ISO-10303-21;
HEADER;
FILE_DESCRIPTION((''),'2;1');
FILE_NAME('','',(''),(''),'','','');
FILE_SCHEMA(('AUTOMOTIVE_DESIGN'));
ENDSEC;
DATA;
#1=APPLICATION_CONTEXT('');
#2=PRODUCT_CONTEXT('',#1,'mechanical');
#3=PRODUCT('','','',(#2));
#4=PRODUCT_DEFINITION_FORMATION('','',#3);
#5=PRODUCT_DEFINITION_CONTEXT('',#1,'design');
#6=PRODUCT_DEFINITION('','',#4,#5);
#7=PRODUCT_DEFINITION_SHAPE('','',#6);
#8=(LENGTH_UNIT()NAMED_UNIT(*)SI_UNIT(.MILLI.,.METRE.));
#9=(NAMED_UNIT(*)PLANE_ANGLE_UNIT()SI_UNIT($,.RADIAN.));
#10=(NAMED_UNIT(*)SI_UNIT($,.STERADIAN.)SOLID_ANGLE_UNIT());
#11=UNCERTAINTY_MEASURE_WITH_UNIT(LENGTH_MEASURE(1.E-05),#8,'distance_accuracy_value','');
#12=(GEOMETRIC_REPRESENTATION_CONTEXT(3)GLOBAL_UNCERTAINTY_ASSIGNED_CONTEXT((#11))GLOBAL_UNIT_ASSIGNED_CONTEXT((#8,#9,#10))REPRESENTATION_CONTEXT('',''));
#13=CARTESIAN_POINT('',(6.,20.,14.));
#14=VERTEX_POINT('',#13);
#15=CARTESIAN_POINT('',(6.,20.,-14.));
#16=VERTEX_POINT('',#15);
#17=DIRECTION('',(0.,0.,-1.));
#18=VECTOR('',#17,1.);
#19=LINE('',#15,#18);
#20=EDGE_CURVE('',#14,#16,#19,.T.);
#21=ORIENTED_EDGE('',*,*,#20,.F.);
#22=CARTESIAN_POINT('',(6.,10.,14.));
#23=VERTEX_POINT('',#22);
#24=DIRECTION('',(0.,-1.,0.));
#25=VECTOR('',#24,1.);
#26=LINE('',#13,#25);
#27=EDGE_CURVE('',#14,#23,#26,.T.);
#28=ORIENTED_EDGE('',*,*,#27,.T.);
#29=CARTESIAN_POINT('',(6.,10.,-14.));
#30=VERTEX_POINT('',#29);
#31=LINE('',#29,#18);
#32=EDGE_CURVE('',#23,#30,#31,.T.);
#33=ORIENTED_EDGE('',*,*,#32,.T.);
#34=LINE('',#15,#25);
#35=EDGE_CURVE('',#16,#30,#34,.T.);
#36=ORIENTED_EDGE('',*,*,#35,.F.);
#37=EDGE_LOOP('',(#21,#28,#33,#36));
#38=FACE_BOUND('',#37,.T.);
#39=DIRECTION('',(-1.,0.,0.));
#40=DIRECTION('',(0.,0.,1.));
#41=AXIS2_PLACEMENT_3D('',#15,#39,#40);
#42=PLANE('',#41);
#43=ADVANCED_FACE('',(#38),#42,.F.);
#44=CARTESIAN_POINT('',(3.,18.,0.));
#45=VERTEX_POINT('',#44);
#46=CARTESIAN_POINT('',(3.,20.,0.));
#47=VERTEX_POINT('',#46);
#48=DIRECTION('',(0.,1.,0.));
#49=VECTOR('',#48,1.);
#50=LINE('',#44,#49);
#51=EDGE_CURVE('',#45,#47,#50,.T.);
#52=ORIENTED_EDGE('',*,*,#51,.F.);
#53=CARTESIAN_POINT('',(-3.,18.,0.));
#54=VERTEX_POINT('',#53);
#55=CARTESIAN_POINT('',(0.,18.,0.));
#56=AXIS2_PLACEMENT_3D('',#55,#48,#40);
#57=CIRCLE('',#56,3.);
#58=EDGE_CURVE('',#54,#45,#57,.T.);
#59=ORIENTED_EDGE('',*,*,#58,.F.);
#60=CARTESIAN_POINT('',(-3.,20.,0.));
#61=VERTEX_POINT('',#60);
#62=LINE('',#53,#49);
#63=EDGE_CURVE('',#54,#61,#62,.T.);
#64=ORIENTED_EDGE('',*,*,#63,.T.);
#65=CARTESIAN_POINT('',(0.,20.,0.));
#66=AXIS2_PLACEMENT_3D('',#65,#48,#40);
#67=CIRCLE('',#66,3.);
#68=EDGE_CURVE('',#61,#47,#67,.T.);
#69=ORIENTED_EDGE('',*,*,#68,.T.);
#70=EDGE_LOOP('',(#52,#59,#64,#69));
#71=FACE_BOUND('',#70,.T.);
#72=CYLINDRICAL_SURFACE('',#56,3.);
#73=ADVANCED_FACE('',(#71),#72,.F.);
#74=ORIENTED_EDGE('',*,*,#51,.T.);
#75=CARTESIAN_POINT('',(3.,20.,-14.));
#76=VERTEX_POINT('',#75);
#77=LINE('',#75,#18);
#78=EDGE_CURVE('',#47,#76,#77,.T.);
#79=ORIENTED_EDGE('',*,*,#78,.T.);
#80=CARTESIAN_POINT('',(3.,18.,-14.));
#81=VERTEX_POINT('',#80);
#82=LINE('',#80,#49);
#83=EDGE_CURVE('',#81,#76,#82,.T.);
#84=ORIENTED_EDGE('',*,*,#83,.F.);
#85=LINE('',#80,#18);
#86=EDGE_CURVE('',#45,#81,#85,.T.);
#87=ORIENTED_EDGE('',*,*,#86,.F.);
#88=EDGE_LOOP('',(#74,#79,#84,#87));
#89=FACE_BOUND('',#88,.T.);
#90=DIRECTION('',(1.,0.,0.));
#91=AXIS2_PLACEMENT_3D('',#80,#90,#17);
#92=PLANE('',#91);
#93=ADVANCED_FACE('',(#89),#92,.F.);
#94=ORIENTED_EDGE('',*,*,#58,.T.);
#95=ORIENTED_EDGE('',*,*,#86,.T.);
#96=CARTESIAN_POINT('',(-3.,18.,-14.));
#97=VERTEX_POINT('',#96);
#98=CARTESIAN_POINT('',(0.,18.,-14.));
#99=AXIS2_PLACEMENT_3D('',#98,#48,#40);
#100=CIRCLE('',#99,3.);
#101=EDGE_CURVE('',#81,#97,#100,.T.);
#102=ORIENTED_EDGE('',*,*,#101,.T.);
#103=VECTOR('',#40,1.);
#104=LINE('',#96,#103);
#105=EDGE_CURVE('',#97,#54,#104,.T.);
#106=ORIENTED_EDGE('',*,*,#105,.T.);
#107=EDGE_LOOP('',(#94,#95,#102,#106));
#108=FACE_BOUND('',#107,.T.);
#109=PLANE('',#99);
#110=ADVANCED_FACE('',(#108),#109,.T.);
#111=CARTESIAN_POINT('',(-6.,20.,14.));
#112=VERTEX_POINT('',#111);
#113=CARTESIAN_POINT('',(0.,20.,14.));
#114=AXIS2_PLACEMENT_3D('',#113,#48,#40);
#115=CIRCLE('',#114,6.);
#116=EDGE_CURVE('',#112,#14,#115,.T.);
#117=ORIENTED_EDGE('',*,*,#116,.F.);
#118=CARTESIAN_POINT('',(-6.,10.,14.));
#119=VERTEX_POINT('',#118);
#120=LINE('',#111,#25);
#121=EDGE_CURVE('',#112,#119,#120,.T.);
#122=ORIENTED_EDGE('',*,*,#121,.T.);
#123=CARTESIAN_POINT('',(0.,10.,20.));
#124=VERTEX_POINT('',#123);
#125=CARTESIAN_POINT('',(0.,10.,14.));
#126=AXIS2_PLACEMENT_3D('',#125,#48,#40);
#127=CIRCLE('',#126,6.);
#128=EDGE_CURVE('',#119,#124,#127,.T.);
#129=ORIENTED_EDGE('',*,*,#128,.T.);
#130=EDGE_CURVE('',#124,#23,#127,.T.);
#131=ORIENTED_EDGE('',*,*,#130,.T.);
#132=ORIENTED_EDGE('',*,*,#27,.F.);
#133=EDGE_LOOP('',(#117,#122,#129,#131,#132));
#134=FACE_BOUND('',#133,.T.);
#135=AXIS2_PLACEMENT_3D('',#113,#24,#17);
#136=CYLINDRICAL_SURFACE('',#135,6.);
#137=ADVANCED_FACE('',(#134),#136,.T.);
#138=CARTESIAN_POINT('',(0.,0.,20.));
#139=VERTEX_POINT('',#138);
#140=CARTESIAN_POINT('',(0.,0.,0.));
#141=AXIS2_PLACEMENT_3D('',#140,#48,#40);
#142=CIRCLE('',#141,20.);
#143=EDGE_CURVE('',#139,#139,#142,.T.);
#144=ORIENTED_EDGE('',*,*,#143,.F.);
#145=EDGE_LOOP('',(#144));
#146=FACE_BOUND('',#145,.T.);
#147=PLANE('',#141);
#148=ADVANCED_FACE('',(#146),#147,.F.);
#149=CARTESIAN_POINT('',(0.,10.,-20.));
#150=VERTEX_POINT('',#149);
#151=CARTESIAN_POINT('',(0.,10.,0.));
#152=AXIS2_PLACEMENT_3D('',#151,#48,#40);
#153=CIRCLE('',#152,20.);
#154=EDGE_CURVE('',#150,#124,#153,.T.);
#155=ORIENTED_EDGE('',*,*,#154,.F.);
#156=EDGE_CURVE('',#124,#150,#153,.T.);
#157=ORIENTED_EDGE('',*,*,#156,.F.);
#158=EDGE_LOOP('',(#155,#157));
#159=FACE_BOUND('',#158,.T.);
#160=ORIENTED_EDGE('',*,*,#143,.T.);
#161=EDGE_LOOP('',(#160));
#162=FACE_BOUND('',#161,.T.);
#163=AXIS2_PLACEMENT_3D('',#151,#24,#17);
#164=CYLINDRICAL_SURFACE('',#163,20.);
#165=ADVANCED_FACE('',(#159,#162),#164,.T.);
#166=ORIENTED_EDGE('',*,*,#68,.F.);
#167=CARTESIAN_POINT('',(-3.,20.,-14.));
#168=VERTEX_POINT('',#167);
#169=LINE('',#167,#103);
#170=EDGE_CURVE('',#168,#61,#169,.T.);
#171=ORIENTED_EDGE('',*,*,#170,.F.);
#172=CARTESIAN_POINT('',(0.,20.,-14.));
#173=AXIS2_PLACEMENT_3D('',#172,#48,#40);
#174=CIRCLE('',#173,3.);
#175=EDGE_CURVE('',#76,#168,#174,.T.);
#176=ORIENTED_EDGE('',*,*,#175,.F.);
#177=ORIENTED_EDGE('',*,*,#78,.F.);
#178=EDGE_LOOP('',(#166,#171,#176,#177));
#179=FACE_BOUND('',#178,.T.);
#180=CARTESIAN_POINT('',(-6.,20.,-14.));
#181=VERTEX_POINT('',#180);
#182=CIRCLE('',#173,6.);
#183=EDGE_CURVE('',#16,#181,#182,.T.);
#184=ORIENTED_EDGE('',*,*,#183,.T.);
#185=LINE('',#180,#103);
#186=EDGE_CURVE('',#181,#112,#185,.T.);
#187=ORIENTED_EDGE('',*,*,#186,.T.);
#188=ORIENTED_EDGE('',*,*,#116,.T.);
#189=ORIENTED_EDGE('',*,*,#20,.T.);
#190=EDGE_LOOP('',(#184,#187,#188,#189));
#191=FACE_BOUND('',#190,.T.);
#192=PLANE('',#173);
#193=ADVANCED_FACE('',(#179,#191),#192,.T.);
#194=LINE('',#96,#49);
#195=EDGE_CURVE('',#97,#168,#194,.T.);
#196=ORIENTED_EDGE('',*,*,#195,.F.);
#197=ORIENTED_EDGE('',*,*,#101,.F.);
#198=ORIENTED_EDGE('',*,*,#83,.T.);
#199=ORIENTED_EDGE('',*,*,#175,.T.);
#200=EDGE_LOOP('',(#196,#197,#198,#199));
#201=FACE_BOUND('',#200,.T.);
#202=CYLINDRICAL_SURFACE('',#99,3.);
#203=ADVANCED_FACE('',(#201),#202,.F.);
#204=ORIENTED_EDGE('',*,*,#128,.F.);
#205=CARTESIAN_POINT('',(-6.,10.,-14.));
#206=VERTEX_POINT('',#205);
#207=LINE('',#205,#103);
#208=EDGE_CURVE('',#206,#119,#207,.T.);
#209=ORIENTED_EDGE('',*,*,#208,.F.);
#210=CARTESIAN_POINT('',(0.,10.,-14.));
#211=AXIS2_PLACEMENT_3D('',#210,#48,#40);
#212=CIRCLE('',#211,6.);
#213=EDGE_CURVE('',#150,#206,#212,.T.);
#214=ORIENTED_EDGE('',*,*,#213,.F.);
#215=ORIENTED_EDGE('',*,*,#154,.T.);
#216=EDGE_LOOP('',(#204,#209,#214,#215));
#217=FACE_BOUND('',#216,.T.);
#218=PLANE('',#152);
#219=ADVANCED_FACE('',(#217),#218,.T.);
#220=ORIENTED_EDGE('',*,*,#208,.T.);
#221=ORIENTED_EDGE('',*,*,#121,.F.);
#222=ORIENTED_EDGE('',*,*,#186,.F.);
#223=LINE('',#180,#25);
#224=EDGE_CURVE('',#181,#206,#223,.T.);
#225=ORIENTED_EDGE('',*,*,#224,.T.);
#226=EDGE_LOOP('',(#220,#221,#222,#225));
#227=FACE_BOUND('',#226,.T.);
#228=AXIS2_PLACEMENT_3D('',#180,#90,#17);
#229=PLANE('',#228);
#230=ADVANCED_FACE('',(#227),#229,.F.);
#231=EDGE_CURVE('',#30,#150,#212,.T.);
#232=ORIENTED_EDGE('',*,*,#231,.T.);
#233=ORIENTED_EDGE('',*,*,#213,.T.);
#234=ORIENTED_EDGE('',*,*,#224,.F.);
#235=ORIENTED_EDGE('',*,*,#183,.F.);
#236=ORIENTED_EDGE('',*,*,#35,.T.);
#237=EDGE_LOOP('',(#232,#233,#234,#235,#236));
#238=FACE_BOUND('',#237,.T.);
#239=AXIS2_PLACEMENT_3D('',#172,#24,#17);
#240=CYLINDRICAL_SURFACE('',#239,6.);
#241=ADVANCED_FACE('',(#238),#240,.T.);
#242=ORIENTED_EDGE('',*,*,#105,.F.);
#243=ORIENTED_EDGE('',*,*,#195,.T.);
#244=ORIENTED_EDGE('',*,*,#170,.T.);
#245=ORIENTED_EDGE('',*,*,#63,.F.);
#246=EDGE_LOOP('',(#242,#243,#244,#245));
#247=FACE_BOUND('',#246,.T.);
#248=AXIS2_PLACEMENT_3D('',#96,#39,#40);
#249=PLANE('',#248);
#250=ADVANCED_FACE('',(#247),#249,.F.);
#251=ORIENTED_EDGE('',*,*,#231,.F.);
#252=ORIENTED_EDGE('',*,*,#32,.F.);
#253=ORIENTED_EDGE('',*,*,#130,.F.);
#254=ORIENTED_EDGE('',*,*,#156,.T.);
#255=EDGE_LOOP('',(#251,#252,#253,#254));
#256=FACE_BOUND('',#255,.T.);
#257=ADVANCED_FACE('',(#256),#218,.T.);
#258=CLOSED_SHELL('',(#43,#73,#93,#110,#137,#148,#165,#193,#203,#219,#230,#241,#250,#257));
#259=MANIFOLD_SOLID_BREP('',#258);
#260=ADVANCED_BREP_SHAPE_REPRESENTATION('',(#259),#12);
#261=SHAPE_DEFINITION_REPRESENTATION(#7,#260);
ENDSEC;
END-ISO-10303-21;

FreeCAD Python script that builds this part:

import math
import FreeCAD as App
import Part
import Sketcher
Q = App.Units.Quantity

doc = App.newDocument("Part")
body = doc.addObject("PartDesign::Body", "Body")

# Sketch on XZ plane
sketch1 = body.newObject("Sketcher::SketchObject", "Sketch")
sketch1.AttachmentSupport = (doc.getObject("XZ_Plane"), [""])
sketch1.MapMode = "FlatFace"
sketch1.addGeometry(Part.Circle(App.Vector(0, 0, 0), App.Vector(0, 0, 1), 20), False)
sketch1.addConstraint([
    Sketcher.Constraint("Coincident", 0, 3, -1, 1),
    Sketcher.Constraint("Diameter", 0, Q("40 mm")),
])
pad1 = body.newObject("PartDesign::Pad", "Pad")
pad1.Profile = sketch1
pad1.Length = 10
pad1.Reversed = True

# Sketch on XZ plane
sketch2 = body.newObject("Sketcher::SketchObject", "Sketch001")
sketch2.AttachmentSupport = (doc.getObject("XZ_Plane"), [""])
sketch2.MapMode = "FlatFace"
sketch2.AttachmentOffset = App.Placement(App.Vector(0, 0, -10), App.Rotation())
sketch2.addGeometry([
    Part.LineSegment(App.Vector(6, 14, 0), App.Vector(6, -14, 0)),
    Part.ArcOfCircle(Part.Circle(App.Vector(0, -14, 0), App.Vector(0, 0, 1), 6), math.radians(180), math.radians(360)),
    Part.LineSegment(App.Vector(-6, -14, 0), App.Vector(-6, 14, 0)),
    Part.ArcOfCircle(Part.Circle(App.Vector(0, 14, 0), App.Vector(0, 0, 1), 6), math.radians(0), math.radians(180)),
], False)
sketch2.addConstraint([
    Sketcher.Constraint("Tangent", 0, 2, 1, 2),
    Sketcher.Constraint("Tangent", 1, 1, 2, 1),
    Sketcher.Constraint("Tangent", 2, 2, 3, 2),
    Sketcher.Constraint("Tangent", 3, 1, 0, 1),
    Sketcher.Constraint("Vertical", 0),
    Sketcher.Constraint("Vertical", 2),
    Sketcher.Constraint("Symmetric", 1, 3, 3, 3, -1, 1),
    Sketcher.Constraint("Radius", 1, Q("6 mm")),
    Sketcher.Constraint("DistanceY", 0, 2, 0, 1, Q("28 mm")),
])
pad2 = body.newObject("PartDesign::Pad", "Pad001")
pad2.Profile = sketch2
pad2.Length = 10
pad2.Reversed = True

# Sketch on XZ plane
sketch3 = body.newObject("Sketcher::SketchObject", "Sketch002")
sketch3.AttachmentSupport = (doc.getObject("XZ_Plane"), [""])
sketch3.MapMode = "FlatFace"
sketch3.AttachmentOffset = App.Placement(App.Vector(0, 0, -20), App.Rotation())
sketch3.addGeometry([
    Part.LineSegment(App.Vector(3, 0, 0), App.Vector(3, -14, 0)),
    Part.ArcOfCircle(Part.Circle(App.Vector(0, -14, 0), App.Vector(0, 0, 1), 3), math.radians(180), math.radians(360)),
    Part.LineSegment(App.Vector(-3, -14, 0), App.Vector(-3, 0, 0)),
    Part.ArcOfCircle(Part.Circle(App.Vector(0, 0, 0), App.Vector(0, 0, 1), 3), math.radians(0), math.radians(180)),
], False)
sketch3.addConstraint([
    Sketcher.Constraint("Tangent", 0, 2, 1, 2),
    Sketcher.Constraint("Tangent", 1, 1, 2, 1),
    Sketcher.Constraint("Tangent", 2, 2, 3, 2),
    Sketcher.Constraint("Tangent", 3, 1, 0, 1),
    Sketcher.Constraint("Vertical", 0),
    Sketcher.Constraint("Vertical", 2),
    Sketcher.Constraint("Coincident", 3, 3, -1, 1),
    Sketcher.Constraint("Radius", 1, Q("3 mm")),
    Sketcher.Constraint("DistanceY", 0, 2, 0, 1, Q("14 mm")),
])
pocket1 = body.newObject("PartDesign::Pocket", "Pocket")
pocket1.Profile = sketch3
pocket1.Length = 2
pocket1.Reversed = True

doc.recompute()
